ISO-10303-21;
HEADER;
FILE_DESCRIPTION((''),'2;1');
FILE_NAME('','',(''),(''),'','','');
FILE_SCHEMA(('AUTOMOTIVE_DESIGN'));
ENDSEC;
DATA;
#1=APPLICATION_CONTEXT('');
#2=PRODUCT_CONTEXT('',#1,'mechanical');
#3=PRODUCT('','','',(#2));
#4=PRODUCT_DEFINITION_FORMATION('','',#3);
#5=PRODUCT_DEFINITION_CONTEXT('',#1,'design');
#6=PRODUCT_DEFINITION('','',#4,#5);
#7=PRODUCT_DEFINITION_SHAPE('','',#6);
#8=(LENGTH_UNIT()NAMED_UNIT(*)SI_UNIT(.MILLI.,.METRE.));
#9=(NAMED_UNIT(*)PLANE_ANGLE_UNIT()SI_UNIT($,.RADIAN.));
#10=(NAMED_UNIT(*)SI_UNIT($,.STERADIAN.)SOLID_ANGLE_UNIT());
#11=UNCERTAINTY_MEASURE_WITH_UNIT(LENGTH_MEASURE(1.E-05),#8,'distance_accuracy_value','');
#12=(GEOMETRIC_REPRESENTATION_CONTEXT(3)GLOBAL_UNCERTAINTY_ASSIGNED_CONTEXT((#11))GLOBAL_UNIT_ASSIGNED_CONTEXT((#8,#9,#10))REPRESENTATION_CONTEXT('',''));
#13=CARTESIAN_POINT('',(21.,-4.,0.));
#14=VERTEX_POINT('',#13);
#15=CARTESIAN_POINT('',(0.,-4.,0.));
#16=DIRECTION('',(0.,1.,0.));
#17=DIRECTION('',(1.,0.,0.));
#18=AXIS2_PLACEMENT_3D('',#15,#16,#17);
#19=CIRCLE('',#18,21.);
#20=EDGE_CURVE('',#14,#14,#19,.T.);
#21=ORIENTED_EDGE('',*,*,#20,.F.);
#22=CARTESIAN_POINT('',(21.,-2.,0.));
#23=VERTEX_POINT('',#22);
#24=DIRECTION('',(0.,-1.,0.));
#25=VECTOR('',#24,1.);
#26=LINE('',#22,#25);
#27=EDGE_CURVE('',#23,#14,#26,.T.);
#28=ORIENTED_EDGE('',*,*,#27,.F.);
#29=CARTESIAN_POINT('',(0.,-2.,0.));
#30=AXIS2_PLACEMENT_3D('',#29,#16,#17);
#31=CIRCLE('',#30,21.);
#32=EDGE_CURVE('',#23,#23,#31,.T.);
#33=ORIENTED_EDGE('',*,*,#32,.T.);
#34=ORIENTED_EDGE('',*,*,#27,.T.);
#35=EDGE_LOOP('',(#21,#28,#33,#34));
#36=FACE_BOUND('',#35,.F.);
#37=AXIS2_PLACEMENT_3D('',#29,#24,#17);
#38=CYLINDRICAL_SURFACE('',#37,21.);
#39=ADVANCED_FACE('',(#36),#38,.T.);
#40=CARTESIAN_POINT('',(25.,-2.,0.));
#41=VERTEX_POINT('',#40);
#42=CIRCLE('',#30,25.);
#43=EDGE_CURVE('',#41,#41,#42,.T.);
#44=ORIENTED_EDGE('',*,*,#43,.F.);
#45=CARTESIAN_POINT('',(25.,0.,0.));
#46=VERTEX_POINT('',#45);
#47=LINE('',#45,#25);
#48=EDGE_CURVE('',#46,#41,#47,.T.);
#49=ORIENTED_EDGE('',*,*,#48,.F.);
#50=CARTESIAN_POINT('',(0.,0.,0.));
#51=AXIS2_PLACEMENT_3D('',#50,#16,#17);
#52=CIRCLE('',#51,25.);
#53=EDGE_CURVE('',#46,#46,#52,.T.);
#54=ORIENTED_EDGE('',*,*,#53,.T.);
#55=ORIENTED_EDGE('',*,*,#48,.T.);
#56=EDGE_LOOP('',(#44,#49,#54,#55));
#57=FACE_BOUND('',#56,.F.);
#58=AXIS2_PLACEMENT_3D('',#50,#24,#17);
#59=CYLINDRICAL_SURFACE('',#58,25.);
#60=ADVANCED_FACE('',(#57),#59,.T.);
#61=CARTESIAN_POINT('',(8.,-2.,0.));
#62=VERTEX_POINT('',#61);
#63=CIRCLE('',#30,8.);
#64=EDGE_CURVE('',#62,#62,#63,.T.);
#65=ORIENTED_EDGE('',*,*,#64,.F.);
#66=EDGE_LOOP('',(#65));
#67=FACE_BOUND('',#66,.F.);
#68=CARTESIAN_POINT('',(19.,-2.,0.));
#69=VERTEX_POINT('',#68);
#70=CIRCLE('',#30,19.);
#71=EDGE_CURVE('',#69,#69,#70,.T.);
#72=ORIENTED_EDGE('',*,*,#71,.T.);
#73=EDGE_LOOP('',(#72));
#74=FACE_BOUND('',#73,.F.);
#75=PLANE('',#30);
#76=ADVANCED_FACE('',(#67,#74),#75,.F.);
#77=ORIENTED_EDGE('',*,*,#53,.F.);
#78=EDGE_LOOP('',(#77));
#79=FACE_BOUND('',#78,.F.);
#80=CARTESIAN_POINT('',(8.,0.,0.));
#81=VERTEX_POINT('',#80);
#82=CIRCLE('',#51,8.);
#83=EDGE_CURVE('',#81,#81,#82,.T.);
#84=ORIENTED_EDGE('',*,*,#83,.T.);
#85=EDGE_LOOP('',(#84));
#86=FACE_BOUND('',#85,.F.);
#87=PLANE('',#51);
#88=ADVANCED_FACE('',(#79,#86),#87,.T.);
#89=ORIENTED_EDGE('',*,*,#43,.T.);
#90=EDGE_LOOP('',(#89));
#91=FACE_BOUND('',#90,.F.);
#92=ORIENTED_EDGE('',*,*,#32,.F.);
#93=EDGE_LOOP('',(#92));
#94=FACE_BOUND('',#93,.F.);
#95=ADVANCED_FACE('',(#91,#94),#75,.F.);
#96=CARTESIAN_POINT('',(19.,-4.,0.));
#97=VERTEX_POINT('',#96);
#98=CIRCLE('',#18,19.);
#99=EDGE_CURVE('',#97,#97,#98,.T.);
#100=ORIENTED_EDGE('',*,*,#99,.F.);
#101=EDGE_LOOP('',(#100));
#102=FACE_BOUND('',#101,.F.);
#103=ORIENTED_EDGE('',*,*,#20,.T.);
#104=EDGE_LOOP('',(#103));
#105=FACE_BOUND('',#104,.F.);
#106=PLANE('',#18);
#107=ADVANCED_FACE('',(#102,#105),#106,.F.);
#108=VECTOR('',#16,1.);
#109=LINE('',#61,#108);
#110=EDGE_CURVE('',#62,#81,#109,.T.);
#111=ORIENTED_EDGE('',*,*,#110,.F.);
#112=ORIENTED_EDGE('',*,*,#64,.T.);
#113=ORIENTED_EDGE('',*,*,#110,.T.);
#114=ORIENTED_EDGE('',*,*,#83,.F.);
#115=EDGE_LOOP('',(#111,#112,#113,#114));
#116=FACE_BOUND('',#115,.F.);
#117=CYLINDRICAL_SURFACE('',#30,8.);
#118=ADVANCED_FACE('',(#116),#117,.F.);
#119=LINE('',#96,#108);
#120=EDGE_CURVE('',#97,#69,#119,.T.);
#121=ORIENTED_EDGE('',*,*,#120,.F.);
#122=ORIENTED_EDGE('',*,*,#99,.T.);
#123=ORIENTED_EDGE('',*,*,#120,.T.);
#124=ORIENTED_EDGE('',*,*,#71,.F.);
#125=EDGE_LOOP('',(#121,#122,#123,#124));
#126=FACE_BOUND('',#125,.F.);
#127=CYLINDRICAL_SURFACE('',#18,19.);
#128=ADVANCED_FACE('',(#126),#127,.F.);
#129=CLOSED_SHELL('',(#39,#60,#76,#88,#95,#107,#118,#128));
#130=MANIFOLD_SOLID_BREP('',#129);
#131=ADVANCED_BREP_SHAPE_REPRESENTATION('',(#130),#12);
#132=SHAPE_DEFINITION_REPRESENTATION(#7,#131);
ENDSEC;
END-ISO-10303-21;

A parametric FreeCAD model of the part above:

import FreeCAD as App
import Part
import Sketcher
from FreeCAD import Vector


def add_polygon(sketch, points):
    """Adds a closed chain of lines whose ends are joined by coincident constraints."""
    first, n = sketch.GeometryCount, len(points)
    for a, b in zip(points, points[1:] + points[:1]):
        sketch.addGeometry(Part.LineSegment(App.Vector(*a, 0), App.Vector(*b, 0)), False)
    for i in range(n):
        sketch.addConstraint(Sketcher.Constraint("Coincident", first + i, 2, first + (i + 1) % n, 1))

doc = App.newDocument("Part")
params = doc.addObject("Spreadsheet::Sheet", "Params")
for row, (alias, value) in enumerate([
    ("sketch1_width", "17 mm"),
    ("sketch1_width2", "2 mm"),
    ("sketch1_width3", "4 mm"),
    ("revolution_angle", "360 deg"),
], start=1):
    params.set(f"A{row}", alias)
    params.set(f"B{row}", "=" + value)
    params.setAlias(f"B{row}", alias)

body = doc.addObject("PartDesign::Body", "Body")

sketch1 = body.newObject("Sketcher::SketchObject", "Sketch")
sketch1.AttachmentSupport = (doc.getObject("XY_Plane"), [""])
sketch1.MapMode = "FlatFace"
add_polygon(sketch1, [(25, 0), (8, 0), (8, -2), (19, -2), (19, -4), (21, -4), (21, -2), (25, -2)])
sketch1.addConstraint([
    Sketcher.Constraint("Horizontal", 0),
    Sketcher.Constraint("Vertical", 1),
    Sketcher.Constraint("Horizontal", 2),
    Sketcher.Constraint("Vertical", 3),
    Sketcher.Constraint("Horizontal", 4),
    Sketcher.Constraint("Vertical", 5),
    Sketcher.Constraint("Horizontal", 6),
    Sketcher.Constraint("Vertical", 7),
    Sketcher.Constraint("PointOnObject", 0, 2, -1),
    Sketcher.Constraint("Horizontal", 2, 2, 5, 2),
    Sketcher.Constraint("Equal", 4, 1),
    Sketcher.Constraint("Equal", 1, 3),
    Sketcher.Constraint("DistanceX", 0, 2, 0, 1, 17.0),
    Sketcher.Constraint("DistanceX", 4, 1, 4, 2, 2.0),
    Sketcher.Constraint("DistanceX", 6, 1, 6, 2, 4.0),
    Sketcher.Constraint("DistanceX", -1, 1, 0, 2, 8.0),
])
sketch1.setExpression("Constraints[20]", "Params.sketch1_width")
sketch1.setExpression("Constraints[21]", "Params.sketch1_width2")
sketch1.setExpression("Constraints[22]", "Params.sketch1_width3")
revolution = body.newObject("PartDesign::Revolution", "Revolution")
revolution.Profile = sketch1
revolution.ReferenceAxis = (sketch1, ["V_Axis"])
revolution.setExpression("Angle", "Params.revolution_angle")

doc.recompute()
